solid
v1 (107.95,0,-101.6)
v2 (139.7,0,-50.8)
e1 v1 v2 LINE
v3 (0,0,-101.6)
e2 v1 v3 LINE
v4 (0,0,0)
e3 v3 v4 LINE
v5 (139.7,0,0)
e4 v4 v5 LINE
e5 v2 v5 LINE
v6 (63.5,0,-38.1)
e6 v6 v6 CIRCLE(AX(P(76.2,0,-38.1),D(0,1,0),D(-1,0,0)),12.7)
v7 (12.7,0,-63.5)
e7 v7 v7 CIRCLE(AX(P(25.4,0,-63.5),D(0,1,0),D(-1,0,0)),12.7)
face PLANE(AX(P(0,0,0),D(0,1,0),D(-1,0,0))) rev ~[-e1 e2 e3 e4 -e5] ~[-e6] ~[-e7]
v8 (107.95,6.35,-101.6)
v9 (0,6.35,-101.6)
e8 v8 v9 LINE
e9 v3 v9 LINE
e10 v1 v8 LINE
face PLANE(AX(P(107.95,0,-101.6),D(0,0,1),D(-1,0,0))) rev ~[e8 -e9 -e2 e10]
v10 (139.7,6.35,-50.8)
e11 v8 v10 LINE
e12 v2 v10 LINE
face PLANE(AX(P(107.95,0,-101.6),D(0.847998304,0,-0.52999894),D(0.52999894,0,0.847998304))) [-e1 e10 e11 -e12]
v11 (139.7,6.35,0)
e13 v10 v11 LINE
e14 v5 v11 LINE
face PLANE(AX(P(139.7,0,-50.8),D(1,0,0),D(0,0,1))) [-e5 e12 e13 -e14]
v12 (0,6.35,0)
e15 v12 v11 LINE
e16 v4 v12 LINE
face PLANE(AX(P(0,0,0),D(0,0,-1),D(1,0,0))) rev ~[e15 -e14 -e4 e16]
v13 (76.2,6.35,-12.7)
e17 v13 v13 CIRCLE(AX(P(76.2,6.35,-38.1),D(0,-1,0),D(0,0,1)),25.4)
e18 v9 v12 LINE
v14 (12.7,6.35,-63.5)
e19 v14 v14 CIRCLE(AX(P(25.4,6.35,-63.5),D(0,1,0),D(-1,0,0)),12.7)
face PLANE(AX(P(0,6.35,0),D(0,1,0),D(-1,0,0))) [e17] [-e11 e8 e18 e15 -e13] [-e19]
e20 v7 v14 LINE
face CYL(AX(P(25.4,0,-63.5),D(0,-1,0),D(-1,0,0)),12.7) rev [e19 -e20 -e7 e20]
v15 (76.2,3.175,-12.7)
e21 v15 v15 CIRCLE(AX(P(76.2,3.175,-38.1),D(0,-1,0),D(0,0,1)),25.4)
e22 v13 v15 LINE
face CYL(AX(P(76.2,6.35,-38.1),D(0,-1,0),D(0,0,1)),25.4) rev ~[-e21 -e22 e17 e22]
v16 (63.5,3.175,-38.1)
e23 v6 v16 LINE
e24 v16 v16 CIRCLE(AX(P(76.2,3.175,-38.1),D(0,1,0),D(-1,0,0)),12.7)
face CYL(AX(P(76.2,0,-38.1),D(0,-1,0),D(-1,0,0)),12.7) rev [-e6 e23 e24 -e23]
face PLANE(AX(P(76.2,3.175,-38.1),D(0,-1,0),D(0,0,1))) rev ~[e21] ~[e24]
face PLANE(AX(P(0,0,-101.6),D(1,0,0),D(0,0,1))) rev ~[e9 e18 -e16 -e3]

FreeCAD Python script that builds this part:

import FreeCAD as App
import Part
import Sketcher
Q = App.Units.Quantity


def add_polygon(sketch, points):
    """Adds a closed chain of lines whose ends are joined by coincident constraints."""
    first, n = sketch.GeometryCount, len(points)
    for a, b in zip(points, points[1:] + points[:1]):
        sketch.addGeometry(Part.LineSegment(App.Vector(*a, 0), App.Vector(*b, 0)), False)
    for i in range(n):
        sketch.addConstraint(Sketcher.Constraint("Coincident", first + i, 2, first + (i + 1) % n, 1))

doc = App.newDocument("Part")
params = doc.addObject("Spreadsheet::Sheet", "Params")
for row, (alias, value) in enumerate([
    ("sketch1_diameter", "1 in"),
    ("sketch1_height", "4 in"),
    ("sketch1_height2", "2 in"),
    ("sketch1_width", "5.5 in"),
    ("sketch1_width2", "4.25 in"),
    ("pad1_length", "0.25 in"),
    ("sketch2_diameter", "1 in"),
    ("hole_diameter", "1 in"),
    ("hole_cbore_diameter", "2 in"),
    ("hole_cbore_depth", "0.125 in"),
], start=1):
    params.set(f"A{row}", alias)
    params.set(f"B{row}", "=" + value)
    params.setAlias(f"B{row}", alias)

body = doc.addObject("PartDesign::Body", "Body")

# Sketch on XZ plane
sketch1 = body.newObject("Sketcher::SketchObject", "Sketch")
sketch1.AttachmentSupport = (doc.getObject("XZ_Plane"), [""])
sketch1.MapMode = "FlatFace"
add_polygon(sketch1, [(0, -102), (0, 0), (140, 0), (140, -51), (108, -102)])  # lines 0-4
sketch1.addGeometry(Part.Circle(App.Vector(25, -64, 0), App.Vector(0, 0, 1), 13), False)  # 5
sketch1.addGeometry(Part.Circle(App.Vector(76, -38, 0), App.Vector(0, 0, 1), 13), False)  # 6
sketch1.addConstraint(Sketcher.Constraint("Vertical", 0))
sketch1.addConstraint(Sketcher.Constraint("Horizontal", 1))
sketch1.addConstraint(Sketcher.Constraint("Vertical", 2))
sketch1.addConstraint(Sketcher.Constraint("Horizontal", 4))
sketch1.addConstraint(Sketcher.Constraint("Coincident", 0, 2, -1, 1))
sketch1.addConstraint(Sketcher.Constraint("Equal", 5, 6))
sketch1.addConstraint(Sketcher.Constraint("Diameter", 5, Q("1 in")))
sketch1.addConstraint(Sketcher.Constraint("DistanceY", 0, 1, 0, 2, Q("4 in")))
sketch1.addConstraint(Sketcher.Constraint("DistanceY", 2, 2, 2, 1, Q("2 in")))
sketch1.addConstraint(Sketcher.Constraint("DistanceX", 1, 1, 1, 2, Q("5.5 in")))
sketch1.addConstraint(Sketcher.Constraint("DistanceX", -1, 1, 5, 3, Q("1 in")))
sketch1.addConstraint(Sketcher.Constraint("DistanceX", -1, 1, 6, 3, Q("3 in")))
sketch1.addConstraint(Sketcher.Constraint("DistanceY", 5, 3, 6, 3, Q("1 in")))
sketch1.addConstraint(Sketcher.Constraint("DistanceX", 4, 2, 4, 1, Q("4.25 in")))
sketch1.addConstraint(Sketcher.Constraint("DistanceY", 5, 3, -1, 1, Q("2.5 in")))
sketch1.setExpression("Constraints[11]", "Params.sketch1_diameter")
sketch1.setExpression("Constraints[12]", "Params.sketch1_height")
sketch1.setExpression("Constraints[13]", "Params.sketch1_height2")
sketch1.setExpression("Constraints[14]", "Params.sketch1_width")
sketch1.setExpression("Constraints[18]", "Params.sketch1_width2")
pad1 = body.newObject("PartDesign::Pad", "Pad")
pad1.Profile = sketch1
pad1.setExpression("Length", "Params.pad1_length")
pad1.Reversed = True

# Sketch on XZ plane
sketch2 = body.newObject("Sketcher::SketchObject", "Sketch001")
sketch2.AttachmentSupport = (doc.getObject("XZ_Plane"), [""])
sketch2.MapMode = "FlatFace"
sketch2.AttachmentOffset = App.Placement(App.Vector(0, 0, -0.25 * 25.4), App.Rotation())
sketch2.addGeometry(Part.Circle(App.Vector(76, -38, 0), App.Vector(0, 0, 1), 13), False)
sketch2.addConstraint(Sketcher.Constraint("Diameter", 0, Q("1 in")))
sketch2.addConstraint(Sketcher.Constraint("DistanceX", -1, 1, 0, 3, Q("3 in")))
sketch2.addConstraint(Sketcher.Constraint("DistanceY", 0, 3, -1, 1, Q("1.5 in")))
sketch2.setExpression("Constraints[0]", "Params.sketch2_diameter")
doc.recompute()
hole = body.newObject("PartDesign::Hole", "Hole")
hole.Profile = sketch2
hole.ThreadType = "None"
hole.setExpression("Diameter", "Params.hole_diameter")
hole.DepthType = "ThroughAll"
hole.HoleCutType = "Counterbore"
hole.setExpression("HoleCutDiameter", "Params.hole_cbore_diameter")
hole.setExpression("HoleCutDepth", "Params.hole_cbore_depth")
hole.Reversed = True

doc.recompute()
